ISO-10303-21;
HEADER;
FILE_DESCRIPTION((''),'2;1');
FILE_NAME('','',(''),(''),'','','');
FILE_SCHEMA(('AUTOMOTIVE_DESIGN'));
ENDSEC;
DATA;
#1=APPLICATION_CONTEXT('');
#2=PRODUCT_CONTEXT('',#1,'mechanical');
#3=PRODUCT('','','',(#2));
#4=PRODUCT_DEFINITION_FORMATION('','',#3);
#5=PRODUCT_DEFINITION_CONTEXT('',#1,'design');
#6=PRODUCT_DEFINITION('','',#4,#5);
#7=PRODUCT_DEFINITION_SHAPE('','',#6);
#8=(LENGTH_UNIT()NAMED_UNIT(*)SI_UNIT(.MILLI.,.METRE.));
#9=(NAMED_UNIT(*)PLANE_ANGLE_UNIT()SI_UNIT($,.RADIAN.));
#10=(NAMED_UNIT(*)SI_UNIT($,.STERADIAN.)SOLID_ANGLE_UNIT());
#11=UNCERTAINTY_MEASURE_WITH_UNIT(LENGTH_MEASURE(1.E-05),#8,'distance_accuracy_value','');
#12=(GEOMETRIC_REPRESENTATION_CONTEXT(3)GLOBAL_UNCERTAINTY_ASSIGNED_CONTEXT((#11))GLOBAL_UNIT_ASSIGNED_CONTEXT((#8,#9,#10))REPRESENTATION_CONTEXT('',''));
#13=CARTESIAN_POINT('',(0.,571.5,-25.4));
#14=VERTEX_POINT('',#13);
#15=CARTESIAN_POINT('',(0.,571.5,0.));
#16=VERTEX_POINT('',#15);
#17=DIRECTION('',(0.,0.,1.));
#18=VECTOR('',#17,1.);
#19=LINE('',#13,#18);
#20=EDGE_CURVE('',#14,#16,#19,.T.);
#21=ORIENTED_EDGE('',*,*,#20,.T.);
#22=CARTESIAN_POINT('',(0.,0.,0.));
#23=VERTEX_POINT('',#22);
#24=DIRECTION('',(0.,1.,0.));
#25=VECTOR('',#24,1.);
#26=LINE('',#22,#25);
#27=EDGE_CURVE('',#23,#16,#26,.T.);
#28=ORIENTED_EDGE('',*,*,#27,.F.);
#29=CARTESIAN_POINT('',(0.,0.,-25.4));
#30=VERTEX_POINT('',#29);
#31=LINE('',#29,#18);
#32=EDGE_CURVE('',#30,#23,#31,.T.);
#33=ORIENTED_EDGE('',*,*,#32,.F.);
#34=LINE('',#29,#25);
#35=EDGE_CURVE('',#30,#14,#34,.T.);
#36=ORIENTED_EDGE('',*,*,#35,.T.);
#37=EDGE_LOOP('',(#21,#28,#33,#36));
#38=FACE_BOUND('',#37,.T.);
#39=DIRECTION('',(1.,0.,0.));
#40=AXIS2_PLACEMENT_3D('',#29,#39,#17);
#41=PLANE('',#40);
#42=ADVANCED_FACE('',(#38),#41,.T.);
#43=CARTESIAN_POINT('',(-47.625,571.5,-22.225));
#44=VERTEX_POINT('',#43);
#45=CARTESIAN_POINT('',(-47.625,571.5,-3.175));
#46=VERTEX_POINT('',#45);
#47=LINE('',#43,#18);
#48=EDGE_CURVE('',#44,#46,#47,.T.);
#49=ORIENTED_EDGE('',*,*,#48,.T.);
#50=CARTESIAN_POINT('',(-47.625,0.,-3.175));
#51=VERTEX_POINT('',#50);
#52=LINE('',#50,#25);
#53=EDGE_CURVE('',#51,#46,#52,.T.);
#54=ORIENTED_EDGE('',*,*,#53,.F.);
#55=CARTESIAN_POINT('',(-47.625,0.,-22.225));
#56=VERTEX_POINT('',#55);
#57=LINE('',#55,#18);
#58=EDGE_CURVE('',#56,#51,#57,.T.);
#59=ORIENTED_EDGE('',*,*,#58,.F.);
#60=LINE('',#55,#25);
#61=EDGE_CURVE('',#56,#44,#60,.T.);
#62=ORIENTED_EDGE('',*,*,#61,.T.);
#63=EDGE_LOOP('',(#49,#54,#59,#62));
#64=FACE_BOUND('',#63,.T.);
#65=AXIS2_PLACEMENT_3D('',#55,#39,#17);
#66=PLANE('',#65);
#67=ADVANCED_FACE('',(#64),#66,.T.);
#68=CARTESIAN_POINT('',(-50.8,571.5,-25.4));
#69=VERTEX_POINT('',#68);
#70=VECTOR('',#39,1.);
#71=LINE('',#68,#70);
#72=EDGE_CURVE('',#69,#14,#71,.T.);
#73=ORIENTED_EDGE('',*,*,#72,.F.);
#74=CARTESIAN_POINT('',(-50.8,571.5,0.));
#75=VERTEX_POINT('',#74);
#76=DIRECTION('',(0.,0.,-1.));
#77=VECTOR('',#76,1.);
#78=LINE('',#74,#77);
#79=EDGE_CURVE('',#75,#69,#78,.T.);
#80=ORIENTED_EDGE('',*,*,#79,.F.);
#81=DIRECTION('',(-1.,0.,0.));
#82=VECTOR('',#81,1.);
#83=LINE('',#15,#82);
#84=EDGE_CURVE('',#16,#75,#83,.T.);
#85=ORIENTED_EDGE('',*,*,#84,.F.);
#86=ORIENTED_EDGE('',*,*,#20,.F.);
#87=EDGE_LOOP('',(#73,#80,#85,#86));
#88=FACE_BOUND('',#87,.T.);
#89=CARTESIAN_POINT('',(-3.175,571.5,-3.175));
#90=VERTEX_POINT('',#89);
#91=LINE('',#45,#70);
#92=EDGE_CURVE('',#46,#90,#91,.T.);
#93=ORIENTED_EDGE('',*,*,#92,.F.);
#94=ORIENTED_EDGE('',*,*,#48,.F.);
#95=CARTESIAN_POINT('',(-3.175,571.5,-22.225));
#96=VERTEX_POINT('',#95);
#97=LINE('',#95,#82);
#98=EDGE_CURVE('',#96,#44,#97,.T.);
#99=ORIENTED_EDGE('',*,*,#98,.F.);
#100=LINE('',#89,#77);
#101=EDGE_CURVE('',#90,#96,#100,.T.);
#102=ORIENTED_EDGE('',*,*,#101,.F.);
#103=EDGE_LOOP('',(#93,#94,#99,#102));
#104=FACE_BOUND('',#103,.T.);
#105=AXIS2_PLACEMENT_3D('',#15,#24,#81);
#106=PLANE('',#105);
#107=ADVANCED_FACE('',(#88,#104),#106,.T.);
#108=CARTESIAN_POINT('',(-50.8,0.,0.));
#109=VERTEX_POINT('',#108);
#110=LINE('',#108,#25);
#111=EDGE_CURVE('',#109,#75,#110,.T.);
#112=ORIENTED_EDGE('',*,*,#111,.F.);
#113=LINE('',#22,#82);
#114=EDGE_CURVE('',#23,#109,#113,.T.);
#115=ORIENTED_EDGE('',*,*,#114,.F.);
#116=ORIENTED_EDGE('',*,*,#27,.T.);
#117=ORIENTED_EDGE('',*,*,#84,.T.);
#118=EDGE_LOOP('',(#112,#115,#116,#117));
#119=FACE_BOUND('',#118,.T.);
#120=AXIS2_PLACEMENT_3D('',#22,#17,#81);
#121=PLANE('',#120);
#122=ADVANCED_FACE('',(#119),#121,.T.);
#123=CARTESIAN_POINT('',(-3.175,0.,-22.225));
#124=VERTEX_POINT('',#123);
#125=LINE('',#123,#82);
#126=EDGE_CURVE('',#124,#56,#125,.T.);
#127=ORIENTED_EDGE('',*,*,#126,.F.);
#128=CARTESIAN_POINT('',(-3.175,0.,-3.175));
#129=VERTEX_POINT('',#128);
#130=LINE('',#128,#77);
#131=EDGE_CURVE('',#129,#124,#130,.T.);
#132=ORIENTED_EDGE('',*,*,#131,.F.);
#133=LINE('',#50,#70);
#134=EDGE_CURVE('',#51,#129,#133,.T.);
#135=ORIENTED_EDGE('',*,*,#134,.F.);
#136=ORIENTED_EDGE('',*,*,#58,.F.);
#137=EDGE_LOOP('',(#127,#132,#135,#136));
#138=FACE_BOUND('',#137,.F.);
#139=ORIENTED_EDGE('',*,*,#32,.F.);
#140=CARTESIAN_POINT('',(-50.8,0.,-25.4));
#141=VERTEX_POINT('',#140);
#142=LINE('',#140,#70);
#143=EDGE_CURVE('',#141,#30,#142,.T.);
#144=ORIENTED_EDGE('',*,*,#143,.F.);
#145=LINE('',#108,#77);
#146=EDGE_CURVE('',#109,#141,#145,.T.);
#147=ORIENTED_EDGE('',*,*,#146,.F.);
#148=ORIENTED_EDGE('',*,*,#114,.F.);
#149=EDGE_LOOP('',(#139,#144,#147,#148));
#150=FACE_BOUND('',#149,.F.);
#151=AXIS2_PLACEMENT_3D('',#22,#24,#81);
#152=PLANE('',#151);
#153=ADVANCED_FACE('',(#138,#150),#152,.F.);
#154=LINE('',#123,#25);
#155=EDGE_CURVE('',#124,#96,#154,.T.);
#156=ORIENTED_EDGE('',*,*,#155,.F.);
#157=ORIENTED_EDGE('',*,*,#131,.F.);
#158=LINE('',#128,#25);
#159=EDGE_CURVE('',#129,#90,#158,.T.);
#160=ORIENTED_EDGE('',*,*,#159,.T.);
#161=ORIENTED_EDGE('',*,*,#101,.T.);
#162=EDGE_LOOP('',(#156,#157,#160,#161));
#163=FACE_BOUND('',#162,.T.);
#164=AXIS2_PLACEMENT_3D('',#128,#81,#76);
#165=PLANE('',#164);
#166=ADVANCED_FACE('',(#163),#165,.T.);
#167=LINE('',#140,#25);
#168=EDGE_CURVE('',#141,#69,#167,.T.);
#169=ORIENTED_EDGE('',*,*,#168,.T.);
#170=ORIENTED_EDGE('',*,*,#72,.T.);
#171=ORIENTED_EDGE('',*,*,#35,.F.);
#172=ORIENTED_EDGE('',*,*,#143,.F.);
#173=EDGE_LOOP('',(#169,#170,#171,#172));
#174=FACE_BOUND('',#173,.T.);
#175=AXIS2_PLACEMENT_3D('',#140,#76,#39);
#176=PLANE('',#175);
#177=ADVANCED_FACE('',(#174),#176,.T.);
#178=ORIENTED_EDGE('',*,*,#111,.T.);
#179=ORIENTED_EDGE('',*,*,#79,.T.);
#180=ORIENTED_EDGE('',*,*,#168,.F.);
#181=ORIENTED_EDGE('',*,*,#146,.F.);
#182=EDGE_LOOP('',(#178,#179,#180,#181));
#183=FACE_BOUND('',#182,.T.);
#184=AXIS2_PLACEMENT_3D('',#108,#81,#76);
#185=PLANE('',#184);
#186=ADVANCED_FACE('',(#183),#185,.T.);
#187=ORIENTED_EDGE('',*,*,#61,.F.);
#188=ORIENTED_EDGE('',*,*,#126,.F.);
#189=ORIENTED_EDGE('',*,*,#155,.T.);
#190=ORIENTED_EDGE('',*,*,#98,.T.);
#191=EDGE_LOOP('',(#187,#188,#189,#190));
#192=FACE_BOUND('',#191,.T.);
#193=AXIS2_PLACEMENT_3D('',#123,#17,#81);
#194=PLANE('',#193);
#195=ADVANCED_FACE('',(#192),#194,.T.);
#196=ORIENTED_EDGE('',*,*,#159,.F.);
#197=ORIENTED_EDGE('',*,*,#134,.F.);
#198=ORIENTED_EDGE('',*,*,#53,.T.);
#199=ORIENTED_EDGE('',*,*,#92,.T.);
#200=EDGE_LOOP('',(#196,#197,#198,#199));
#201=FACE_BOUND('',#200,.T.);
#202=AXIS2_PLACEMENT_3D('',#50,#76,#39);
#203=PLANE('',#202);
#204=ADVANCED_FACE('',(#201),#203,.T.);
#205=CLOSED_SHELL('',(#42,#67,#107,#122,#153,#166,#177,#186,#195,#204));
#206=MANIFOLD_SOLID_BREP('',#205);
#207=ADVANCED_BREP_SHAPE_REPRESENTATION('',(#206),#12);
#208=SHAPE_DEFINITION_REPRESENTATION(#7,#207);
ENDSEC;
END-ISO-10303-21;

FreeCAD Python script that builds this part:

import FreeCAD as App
import Part
import Sketcher
Q = App.Units.Quantity


def add_polygon(sketch, points):
    """Adds a closed chain of lines whose ends are joined by coincident constraints."""
    first, n = sketch.GeometryCount, len(points)
    for a, b in zip(points, points[1:] + points[:1]):
        sketch.addGeometry(Part.LineSegment(App.Vector(*a, 0), App.Vector(*b, 0)), False)
    for i in range(n):
        sketch.addConstraint(Sketcher.Constraint("Coincident", first + i, 2, first + (i + 1) % n, 1))

doc = App.newDocument("Part")
body = doc.addObject("PartDesign::Body", "Body")

# Sketch on XZ plane
sketch1 = doc.addObject("Sketcher::SketchObject", "Sketch")
body.addObject(sketch1)
sketch1.AttachmentSupport = (doc.XZ_Plane, [""])
sketch1.MapMode = "FlatFace"
add_polygon(sketch1, [(-51, 0), (0, 0), (0, -25), (-51, -25)])  # lines 0-3
add_polygon(sketch1, [(-48, -3), (-48, -22), (-3, -22), (-3, -3)])  # lines 4-7
sketch1.addConstraint([
    Sketcher.Constraint("Horizontal", 0),
    Sketcher.Constraint("Vertical", 1),
    Sketcher.Constraint("Horizontal", 2),
    Sketcher.Constraint("Vertical", 3),
    Sketcher.Constraint("Vertical", 4),
    Sketcher.Constraint("Horizontal", 5),
    Sketcher.Constraint("Vertical", 6),
    Sketcher.Constraint("Horizontal", 7),
    Sketcher.Constraint("Coincident", 0, 2, -1, 1),
    Sketcher.Constraint("DistanceX", 0, 1, 0, 2, Q("2 in")),
    Sketcher.Constraint("DistanceY", 1, 2, 1, 1, Q("1 in")),
    Sketcher.Constraint("DistanceX", 5, 2, -1, 1, Q("0.125 in")),
    Sketcher.Constraint("DistanceY", 6, 2, -1, 1, Q("0.125 in")),
    Sketcher.Constraint("DistanceX", 2, 2, 4, 2, Q("0.125 in")),
    Sketcher.Constraint("DistanceY", 2, 2, 4, 2, Q("0.125 in")),
])
pad1 = doc.addObject("PartDesign::Pad", "Pad")
body.addObject(pad1)
pad1.Profile = sketch1
pad1.Length = Q("22.5 in")
pad1.Reversed = True

doc.recompute()
